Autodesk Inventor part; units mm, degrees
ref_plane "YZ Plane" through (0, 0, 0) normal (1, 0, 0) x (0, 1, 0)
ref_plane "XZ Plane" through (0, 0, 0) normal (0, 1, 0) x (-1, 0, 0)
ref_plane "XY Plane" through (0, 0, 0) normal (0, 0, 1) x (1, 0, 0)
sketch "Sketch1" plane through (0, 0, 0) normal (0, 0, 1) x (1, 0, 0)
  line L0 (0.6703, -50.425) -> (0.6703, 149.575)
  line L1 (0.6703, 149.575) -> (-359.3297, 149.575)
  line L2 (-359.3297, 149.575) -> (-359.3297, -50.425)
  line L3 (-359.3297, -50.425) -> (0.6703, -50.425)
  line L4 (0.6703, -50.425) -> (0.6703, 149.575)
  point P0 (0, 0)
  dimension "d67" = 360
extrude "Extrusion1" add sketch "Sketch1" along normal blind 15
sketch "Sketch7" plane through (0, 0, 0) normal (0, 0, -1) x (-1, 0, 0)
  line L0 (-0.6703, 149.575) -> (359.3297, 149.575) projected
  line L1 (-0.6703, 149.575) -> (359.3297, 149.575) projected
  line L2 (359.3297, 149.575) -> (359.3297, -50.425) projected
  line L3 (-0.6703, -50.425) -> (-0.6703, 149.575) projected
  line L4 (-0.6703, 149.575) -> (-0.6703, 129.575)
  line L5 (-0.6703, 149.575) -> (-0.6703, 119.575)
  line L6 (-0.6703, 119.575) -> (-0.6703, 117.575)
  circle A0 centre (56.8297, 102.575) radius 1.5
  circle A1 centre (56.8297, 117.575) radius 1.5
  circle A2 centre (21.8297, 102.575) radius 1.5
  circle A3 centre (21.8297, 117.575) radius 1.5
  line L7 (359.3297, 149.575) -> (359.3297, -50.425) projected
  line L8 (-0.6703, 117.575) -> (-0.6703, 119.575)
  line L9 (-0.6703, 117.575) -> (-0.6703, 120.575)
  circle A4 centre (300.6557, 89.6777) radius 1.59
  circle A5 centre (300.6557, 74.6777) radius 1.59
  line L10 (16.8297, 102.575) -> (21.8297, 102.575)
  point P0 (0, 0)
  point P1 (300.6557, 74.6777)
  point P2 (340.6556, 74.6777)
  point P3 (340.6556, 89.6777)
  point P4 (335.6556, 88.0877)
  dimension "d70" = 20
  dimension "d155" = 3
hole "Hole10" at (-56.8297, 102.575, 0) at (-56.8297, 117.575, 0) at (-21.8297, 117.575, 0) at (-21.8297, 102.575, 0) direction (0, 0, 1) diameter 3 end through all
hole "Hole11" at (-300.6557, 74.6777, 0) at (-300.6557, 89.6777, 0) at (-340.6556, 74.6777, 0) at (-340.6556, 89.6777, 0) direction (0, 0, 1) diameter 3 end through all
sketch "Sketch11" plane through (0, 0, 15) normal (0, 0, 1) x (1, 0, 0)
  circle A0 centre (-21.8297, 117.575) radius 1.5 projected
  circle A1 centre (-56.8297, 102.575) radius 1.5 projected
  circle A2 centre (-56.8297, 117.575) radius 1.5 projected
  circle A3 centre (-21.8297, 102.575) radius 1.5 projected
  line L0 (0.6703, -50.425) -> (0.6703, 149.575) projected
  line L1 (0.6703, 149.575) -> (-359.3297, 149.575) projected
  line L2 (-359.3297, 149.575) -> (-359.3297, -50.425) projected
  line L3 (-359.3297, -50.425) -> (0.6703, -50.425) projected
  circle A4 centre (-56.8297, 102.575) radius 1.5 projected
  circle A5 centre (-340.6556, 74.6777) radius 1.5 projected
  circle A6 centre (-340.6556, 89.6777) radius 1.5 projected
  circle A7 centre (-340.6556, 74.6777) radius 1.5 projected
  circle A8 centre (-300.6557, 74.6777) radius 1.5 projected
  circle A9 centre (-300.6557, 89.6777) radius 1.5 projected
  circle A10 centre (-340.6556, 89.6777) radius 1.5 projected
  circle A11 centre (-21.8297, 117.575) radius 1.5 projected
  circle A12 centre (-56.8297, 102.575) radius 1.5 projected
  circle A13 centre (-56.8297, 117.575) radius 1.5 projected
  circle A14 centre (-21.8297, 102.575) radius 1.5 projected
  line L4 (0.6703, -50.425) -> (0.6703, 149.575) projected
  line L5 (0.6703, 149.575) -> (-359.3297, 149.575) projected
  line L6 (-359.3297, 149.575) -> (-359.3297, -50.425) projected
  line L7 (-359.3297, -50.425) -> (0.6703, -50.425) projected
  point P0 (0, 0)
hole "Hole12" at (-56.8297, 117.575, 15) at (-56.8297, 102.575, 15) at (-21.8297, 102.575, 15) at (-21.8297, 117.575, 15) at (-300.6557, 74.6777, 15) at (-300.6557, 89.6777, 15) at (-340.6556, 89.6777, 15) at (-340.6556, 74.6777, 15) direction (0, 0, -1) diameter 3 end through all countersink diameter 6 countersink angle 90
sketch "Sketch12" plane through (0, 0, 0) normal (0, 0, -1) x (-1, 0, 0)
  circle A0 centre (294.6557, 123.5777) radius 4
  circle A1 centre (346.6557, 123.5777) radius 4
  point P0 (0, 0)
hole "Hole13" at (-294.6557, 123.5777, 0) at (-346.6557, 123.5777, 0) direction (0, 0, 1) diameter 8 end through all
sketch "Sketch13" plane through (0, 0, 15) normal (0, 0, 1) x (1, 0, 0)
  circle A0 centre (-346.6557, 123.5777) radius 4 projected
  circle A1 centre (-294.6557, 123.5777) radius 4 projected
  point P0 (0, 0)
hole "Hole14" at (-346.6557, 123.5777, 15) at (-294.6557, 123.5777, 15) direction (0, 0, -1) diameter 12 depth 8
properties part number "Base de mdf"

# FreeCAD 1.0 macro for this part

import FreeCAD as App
import Part
import Sketcher

V = App.Vector


def add_polygon(sketch, points):
    """Adds a closed chain of lines whose ends are joined by coincident constraints."""
    first, n = sketch.GeometryCount, len(points)
    for a, b in zip(points, points[1:] + points[:1]):
        sketch.addGeometry(Part.LineSegment(App.Vector(*a, 0), App.Vector(*b, 0)), False)
    for i in range(n):
        sketch.addConstraint(Sketcher.Constraint("Coincident", first + i, 2, first + (i + 1) % n, 1))

doc = App.newDocument("Part")
body = doc.addObject("PartDesign::Body", "Body")

# Sketch on XY plane
sketch1 = body.newObject("Sketcher::SketchObject", "Sketch")
sketch1.AttachmentSupport = (doc.getObject("XY_Plane"), [""])
sketch1.MapMode = "FlatFace"
add_polygon(sketch1, [(-359.3297, -50.425), (0.6703, -50.425), (0.6703, 149.575), (-359.3297, 149.575)])  # lines 0-3
sketch1.addConstraint(Sketcher.Constraint("Horizontal", 0))
sketch1.addConstraint(Sketcher.Constraint("Vertical", 1))
sketch1.addConstraint(Sketcher.Constraint("Horizontal", 2))
sketch1.addConstraint(Sketcher.Constraint("Vertical", 3))
sketch1.addConstraint(Sketcher.Constraint("DistanceX", 0, 1, 0, 2, 360.0))
sketch1.addConstraint(Sketcher.Constraint("DistanceY", 1, 1, 1, 2, 200.0))
sketch1.addConstraint(Sketcher.Constraint("DistanceY", 0, 2, -1, 1, 50.425))
sketch1.addConstraint(Sketcher.Constraint("DistanceX", -1, 1, 0, 2, 0.6703))
pad1 = body.newObject("PartDesign::Pad", "Pad")
pad1.Profile = sketch1
pad1.Length = 15

# Sketch on XY plane
sketch2 = body.newObject("Sketcher::SketchObject", "Sketch001")
sketch2.AttachmentSupport = (doc.getObject("XY_Plane"), [""])
sketch2.MapMode = "FlatFace"
sketch2.addGeometry(Part.Circle(V(-56.8297, 102.575, 0), V(0, 0, 1), 1.5), False)
sketch2.addGeometry(Part.Circle(V(-56.8297, 117.575, 0), V(0, 0, 1), 1.5), False)
sketch2.addGeometry(Part.Circle(V(-21.8297, 117.575, 0), V(0, 0, 1), 1.5), False)
sketch2.addGeometry(Part.Circle(V(-21.8297, 102.575, 0), V(0, 0, 1), 1.5), False)
sketch2.addConstraint(Sketcher.Constraint("Equal", 0, 1))
sketch2.addConstraint(Sketcher.Constraint("Equal", 1, 2))
sketch2.addConstraint(Sketcher.Constraint("Equal", 2, 3))
sketch2.addConstraint(Sketcher.Constraint("Horizontal", 1, 3, 2, 3))
sketch2.addConstraint(Sketcher.Constraint("Horizontal", 0, 3, 3, 3))
sketch2.addConstraint(Sketcher.Constraint("Vertical", 0, 3, 1, 3))
sketch2.addConstraint(Sketcher.Constraint("Vertical", 2, 3, 3, 3))
sketch2.addConstraint(Sketcher.Constraint("Diameter", 0, 3.0))
sketch2.addConstraint(Sketcher.Constraint("DistanceY", 0, 3, 1, 3, 15.0))
sketch2.addConstraint(Sketcher.Constraint("DistanceX", 1, 3, 2, 3, 35.0))
sketch2.addConstraint(Sketcher.Constraint("DistanceY", -1, 1, 0, 3, 102.575))
sketch2.addConstraint(Sketcher.Constraint("DistanceX", 0, 3, -1, 1, 56.8297))
doc.recompute()
hole = body.newObject("PartDesign::Hole", "Hole")
hole.Profile = sketch2
hole.ThreadType = "None"
hole.Diameter = 3
hole.DepthType = "ThroughAll"
hole.Reversed = True

# Sketch on XY plane
sketch3 = body.newObject("Sketcher::SketchObject", "Sketch002")
sketch3.AttachmentSupport = (doc.getObject("XY_Plane"), [""])
sketch3.MapMode = "FlatFace"
sketch3.addGeometry(Part.Circle(V(-300.6557, 74.6777, 0), V(0, 0, 1), 1.5), False)
sketch3.addGeometry(Part.Circle(V(-300.6557, 89.6777, 0), V(0, 0, 1), 1.5), False)
sketch3.addGeometry(Part.Circle(V(-340.6556, 74.6777, 0), V(0, 0, 1), 1.5), False)
sketch3.addGeometry(Part.Circle(V(-340.6556, 89.6777, 0), V(0, 0, 1), 1.5), False)
sketch3.addConstraint(Sketcher.Constraint("Equal", 0, 1))
sketch3.addConstraint(Sketcher.Constraint("Equal", 1, 2))
sketch3.addConstraint(Sketcher.Constraint("Equal", 2, 3))
sketch3.addConstraint(Sketcher.Constraint("Horizontal", 0, 3, 2, 3))
sketch3.addConstraint(Sketcher.Constraint("Horizontal", 1, 3, 3, 3))
sketch3.addConstraint(Sketcher.Constraint("Vertical", 0, 3, 1, 3))
sketch3.addConstraint(Sketcher.Constraint("Vertical", 2, 3, 3, 3))
sketch3.addConstraint(Sketcher.Constraint("Diameter", 0, 3.0))
sketch3.addConstraint(Sketcher.Constraint("DistanceY", 0, 3, 1, 3, 15.0))
sketch3.addConstraint(Sketcher.Constraint("DistanceX", 2, 3, 0, 3, 40.0))
sketch3.addConstraint(Sketcher.Constraint("DistanceX", 0, 3, -1, 1, 300.6557))
sketch3.addConstraint(Sketcher.Constraint("DistanceY", -1, 1, 0, 3, 74.6777))
doc.recompute()
hole2 = body.newObject("PartDesign::Hole", "Hole001")
hole2.Profile = sketch3
hole2.ThreadType = "None"
hole2.Diameter = 3
hole2.DepthType = "ThroughAll"
hole2.Reversed = True

# Sketch on XY plane
sketch4 = body.newObject("Sketcher::SketchObject", "Sketch003")
sketch4.AttachmentSupport = (doc.getObject("XY_Plane"), [""])
sketch4.MapMode = "FlatFace"
sketch4.AttachmentOffset = App.Placement(V(0, 0, 15), App.Rotation())
sketch4.addGeometry(Part.Circle(V(-56.8297, 117.575, 0), V(0, 0, 1), 1.5), False)
sketch4.addGeometry(Part.Circle(V(-56.8297, 102.575, 0), V(0, 0, 1), 1.5), False)
sketch4.addGeometry(Part.Circle(V(-21.8297, 102.575, 0), V(0, 0, 1), 1.5), False)
sketch4.addGeometry(Part.Circle(V(-21.8297, 117.575, 0), V(0, 0, 1), 1.5), False)
sketch4.addGeometry(Part.Circle(V(-300.6557, 74.6777, 0), V(0, 0, 1), 1.5), False)
sketch4.addGeometry(Part.Circle(V(-300.6557, 89.6777, 0), V(0, 0, 1), 1.5), False)
sketch4.addGeometry(Part.Circle(V(-340.6556, 89.6777, 0), V(0, 0, 1), 1.5), False)
sketch4.addGeometry(Part.Circle(V(-340.6556, 74.6777, 0), V(0, 0, 1), 1.5), False)
sketch4.addConstraint(Sketcher.Constraint("Equal", 0, 1))
sketch4.addConstraint(Sketcher.Constraint("Equal", 1, 2))
sketch4.addConstraint(Sketcher.Constraint("Equal", 2, 3))
sketch4.addConstraint(Sketcher.Constraint("Equal", 3, 4))
sketch4.addConstraint(Sketcher.Constraint("Equal", 4, 5))
sketch4.addConstraint(Sketcher.Constraint("Equal", 5, 6))
sketch4.addConstraint(Sketcher.Constraint("Equal", 6, 7))
sketch4.addConstraint(Sketcher.Constraint("Horizontal", 1, 3, 2, 3))
sketch4.addConstraint(Sketcher.Constraint("Horizontal", 0, 3, 3, 3))
sketch4.addConstraint(Sketcher.Constraint("Horizontal", 5, 3, 6, 3))
sketch4.addConstraint(Sketcher.Constraint("Horizontal", 4, 3, 7, 3))
sketch4.addConstraint(Sketcher.Constraint("Vertical", 0, 3, 1, 3))
sketch4.addConstraint(Sketcher.Constraint("Vertical", 2, 3, 3, 3))
sketch4.addConstraint(Sketcher.Constraint("Vertical", 4, 3, 5, 3))
sketch4.addConstraint(Sketcher.Constraint("Vertical", 6, 3, 7, 3))
sketch4.addConstraint(Sketcher.Constraint("Diameter", 0, 3.0))
sketch4.addConstraint(Sketcher.Constraint("DistanceY", 1, 3, 0, 3, 15.0))
sketch4.addConstraint(Sketcher.Constraint("DistanceX", 1, 3, 2, 3, 35.0))
sketch4.addConstraint(Sketcher.Constraint("DistanceY", 4, 3, 5, 3, 15.0))
sketch4.addConstraint(Sketcher.Constraint("DistanceX", 6, 3, 5, 3, 40.0))
sketch4.addConstraint(Sketcher.Constraint("DistanceY", -1, 1, 0, 3, 117.575))
sketch4.addConstraint(Sketcher.Constraint("DistanceX", 4, 3, 1, 3, 243.826))
sketch4.addConstraint(Sketcher.Constraint("DistanceX", 0, 3, -1, 1, 56.8297))
sketch4.addConstraint(Sketcher.Constraint("DistanceY", -1, 1, 4, 3, 74.6777))
doc.recompute()
hole3 = body.newObject("PartDesign::Hole", "Hole002")
hole3.Profile = sketch4
hole3.ThreadType = "None"
hole3.Diameter = 3
hole3.DepthType = "ThroughAll"
hole3.HoleCutType = "Countersink"
hole3.HoleCutDiameter = 6
hole3.HoleCutCountersinkAngle = 90

# Sketch on XY plane
sketch5 = body.newObject("Sketcher::SketchObject", "Sketch004")
sketch5.AttachmentSupport = (doc.getObject("XY_Plane"), [""])
sketch5.MapMode = "FlatFace"
sketch5.addGeometry(Part.Circle(V(-294.6557, 123.5777, 0), V(0, 0, 1), 4), False)
sketch5.addGeometry(Part.Circle(V(-346.6557, 123.5777, 0), V(0, 0, 1), 4), False)
sketch5.addConstraint(Sketcher.Constraint("Equal", 0, 1))
sketch5.addConstraint(Sketcher.Constraint("Horizontal", 0, 3, 1, 3))
sketch5.addConstraint(Sketcher.Constraint("Diameter", 0, 8.0))
sketch5.addConstraint(Sketcher.Constraint("DistanceX", 1, 3, 0, 3, 52.0))
sketch5.addConstraint(Sketcher.Constraint("DistanceX", 0, 3, -1, 1, 294.6557))
sketch5.addConstraint(Sketcher.Constraint("DistanceY", -1, 1, 0, 3, 123.5777))
doc.recompute()
hole4 = body.newObject("PartDesign::Hole", "Hole003")
hole4.Profile = sketch5
hole4.ThreadType = "None"
hole4.Diameter = 8
hole4.DepthType = "ThroughAll"
hole4.Reversed = True

# Sketch on XY plane
sketch6 = body.newObject("Sketcher::SketchObject", "Sketch005")
sketch6.AttachmentSupport = (doc.getObject("XY_Plane"), [""])
sketch6.MapMode = "FlatFace"
sketch6.AttachmentOffset = App.Placement(V(0, 0, 15), App.Rotation())
sketch6.addGeometry(Part.Circle(V(-346.6557, 123.5777, 0), V(0, 0, 1), 6), False)
sketch6.addGeometry(Part.Circle(V(-294.6557, 123.5777, 0), V(0, 0, 1), 6), False)
sketch6.addConstraint(Sketcher.Constraint("Equal", 0, 1))
sketch6.addConstraint(Sketcher.Constraint("Horizontal", 0, 3, 1, 3))
sketch6.addConstraint(Sketcher.Constraint("Diameter", 0, 12.0))
sketch6.addConstraint(Sketcher.Constraint("DistanceX", 0, 3, 1, 3, 52.0))
sketch6.addConstraint(Sketcher.Constraint("DistanceX", 0, 3, -1, 1, 346.6557))
sketch6.addConstraint(Sketcher.Constraint("DistanceY", -1, 1, 0, 3, 123.5777))
doc.recompute()
hole5 = body.newObject("PartDesign::Hole", "Hole004")
hole5.Profile = sketch6
hole5.ThreadType = "None"
hole5.Diameter = 12
hole5.DepthType = "Dimension"
hole5.Depth = 8
hole5.DrillPoint = "Flat"

doc.recompute()
